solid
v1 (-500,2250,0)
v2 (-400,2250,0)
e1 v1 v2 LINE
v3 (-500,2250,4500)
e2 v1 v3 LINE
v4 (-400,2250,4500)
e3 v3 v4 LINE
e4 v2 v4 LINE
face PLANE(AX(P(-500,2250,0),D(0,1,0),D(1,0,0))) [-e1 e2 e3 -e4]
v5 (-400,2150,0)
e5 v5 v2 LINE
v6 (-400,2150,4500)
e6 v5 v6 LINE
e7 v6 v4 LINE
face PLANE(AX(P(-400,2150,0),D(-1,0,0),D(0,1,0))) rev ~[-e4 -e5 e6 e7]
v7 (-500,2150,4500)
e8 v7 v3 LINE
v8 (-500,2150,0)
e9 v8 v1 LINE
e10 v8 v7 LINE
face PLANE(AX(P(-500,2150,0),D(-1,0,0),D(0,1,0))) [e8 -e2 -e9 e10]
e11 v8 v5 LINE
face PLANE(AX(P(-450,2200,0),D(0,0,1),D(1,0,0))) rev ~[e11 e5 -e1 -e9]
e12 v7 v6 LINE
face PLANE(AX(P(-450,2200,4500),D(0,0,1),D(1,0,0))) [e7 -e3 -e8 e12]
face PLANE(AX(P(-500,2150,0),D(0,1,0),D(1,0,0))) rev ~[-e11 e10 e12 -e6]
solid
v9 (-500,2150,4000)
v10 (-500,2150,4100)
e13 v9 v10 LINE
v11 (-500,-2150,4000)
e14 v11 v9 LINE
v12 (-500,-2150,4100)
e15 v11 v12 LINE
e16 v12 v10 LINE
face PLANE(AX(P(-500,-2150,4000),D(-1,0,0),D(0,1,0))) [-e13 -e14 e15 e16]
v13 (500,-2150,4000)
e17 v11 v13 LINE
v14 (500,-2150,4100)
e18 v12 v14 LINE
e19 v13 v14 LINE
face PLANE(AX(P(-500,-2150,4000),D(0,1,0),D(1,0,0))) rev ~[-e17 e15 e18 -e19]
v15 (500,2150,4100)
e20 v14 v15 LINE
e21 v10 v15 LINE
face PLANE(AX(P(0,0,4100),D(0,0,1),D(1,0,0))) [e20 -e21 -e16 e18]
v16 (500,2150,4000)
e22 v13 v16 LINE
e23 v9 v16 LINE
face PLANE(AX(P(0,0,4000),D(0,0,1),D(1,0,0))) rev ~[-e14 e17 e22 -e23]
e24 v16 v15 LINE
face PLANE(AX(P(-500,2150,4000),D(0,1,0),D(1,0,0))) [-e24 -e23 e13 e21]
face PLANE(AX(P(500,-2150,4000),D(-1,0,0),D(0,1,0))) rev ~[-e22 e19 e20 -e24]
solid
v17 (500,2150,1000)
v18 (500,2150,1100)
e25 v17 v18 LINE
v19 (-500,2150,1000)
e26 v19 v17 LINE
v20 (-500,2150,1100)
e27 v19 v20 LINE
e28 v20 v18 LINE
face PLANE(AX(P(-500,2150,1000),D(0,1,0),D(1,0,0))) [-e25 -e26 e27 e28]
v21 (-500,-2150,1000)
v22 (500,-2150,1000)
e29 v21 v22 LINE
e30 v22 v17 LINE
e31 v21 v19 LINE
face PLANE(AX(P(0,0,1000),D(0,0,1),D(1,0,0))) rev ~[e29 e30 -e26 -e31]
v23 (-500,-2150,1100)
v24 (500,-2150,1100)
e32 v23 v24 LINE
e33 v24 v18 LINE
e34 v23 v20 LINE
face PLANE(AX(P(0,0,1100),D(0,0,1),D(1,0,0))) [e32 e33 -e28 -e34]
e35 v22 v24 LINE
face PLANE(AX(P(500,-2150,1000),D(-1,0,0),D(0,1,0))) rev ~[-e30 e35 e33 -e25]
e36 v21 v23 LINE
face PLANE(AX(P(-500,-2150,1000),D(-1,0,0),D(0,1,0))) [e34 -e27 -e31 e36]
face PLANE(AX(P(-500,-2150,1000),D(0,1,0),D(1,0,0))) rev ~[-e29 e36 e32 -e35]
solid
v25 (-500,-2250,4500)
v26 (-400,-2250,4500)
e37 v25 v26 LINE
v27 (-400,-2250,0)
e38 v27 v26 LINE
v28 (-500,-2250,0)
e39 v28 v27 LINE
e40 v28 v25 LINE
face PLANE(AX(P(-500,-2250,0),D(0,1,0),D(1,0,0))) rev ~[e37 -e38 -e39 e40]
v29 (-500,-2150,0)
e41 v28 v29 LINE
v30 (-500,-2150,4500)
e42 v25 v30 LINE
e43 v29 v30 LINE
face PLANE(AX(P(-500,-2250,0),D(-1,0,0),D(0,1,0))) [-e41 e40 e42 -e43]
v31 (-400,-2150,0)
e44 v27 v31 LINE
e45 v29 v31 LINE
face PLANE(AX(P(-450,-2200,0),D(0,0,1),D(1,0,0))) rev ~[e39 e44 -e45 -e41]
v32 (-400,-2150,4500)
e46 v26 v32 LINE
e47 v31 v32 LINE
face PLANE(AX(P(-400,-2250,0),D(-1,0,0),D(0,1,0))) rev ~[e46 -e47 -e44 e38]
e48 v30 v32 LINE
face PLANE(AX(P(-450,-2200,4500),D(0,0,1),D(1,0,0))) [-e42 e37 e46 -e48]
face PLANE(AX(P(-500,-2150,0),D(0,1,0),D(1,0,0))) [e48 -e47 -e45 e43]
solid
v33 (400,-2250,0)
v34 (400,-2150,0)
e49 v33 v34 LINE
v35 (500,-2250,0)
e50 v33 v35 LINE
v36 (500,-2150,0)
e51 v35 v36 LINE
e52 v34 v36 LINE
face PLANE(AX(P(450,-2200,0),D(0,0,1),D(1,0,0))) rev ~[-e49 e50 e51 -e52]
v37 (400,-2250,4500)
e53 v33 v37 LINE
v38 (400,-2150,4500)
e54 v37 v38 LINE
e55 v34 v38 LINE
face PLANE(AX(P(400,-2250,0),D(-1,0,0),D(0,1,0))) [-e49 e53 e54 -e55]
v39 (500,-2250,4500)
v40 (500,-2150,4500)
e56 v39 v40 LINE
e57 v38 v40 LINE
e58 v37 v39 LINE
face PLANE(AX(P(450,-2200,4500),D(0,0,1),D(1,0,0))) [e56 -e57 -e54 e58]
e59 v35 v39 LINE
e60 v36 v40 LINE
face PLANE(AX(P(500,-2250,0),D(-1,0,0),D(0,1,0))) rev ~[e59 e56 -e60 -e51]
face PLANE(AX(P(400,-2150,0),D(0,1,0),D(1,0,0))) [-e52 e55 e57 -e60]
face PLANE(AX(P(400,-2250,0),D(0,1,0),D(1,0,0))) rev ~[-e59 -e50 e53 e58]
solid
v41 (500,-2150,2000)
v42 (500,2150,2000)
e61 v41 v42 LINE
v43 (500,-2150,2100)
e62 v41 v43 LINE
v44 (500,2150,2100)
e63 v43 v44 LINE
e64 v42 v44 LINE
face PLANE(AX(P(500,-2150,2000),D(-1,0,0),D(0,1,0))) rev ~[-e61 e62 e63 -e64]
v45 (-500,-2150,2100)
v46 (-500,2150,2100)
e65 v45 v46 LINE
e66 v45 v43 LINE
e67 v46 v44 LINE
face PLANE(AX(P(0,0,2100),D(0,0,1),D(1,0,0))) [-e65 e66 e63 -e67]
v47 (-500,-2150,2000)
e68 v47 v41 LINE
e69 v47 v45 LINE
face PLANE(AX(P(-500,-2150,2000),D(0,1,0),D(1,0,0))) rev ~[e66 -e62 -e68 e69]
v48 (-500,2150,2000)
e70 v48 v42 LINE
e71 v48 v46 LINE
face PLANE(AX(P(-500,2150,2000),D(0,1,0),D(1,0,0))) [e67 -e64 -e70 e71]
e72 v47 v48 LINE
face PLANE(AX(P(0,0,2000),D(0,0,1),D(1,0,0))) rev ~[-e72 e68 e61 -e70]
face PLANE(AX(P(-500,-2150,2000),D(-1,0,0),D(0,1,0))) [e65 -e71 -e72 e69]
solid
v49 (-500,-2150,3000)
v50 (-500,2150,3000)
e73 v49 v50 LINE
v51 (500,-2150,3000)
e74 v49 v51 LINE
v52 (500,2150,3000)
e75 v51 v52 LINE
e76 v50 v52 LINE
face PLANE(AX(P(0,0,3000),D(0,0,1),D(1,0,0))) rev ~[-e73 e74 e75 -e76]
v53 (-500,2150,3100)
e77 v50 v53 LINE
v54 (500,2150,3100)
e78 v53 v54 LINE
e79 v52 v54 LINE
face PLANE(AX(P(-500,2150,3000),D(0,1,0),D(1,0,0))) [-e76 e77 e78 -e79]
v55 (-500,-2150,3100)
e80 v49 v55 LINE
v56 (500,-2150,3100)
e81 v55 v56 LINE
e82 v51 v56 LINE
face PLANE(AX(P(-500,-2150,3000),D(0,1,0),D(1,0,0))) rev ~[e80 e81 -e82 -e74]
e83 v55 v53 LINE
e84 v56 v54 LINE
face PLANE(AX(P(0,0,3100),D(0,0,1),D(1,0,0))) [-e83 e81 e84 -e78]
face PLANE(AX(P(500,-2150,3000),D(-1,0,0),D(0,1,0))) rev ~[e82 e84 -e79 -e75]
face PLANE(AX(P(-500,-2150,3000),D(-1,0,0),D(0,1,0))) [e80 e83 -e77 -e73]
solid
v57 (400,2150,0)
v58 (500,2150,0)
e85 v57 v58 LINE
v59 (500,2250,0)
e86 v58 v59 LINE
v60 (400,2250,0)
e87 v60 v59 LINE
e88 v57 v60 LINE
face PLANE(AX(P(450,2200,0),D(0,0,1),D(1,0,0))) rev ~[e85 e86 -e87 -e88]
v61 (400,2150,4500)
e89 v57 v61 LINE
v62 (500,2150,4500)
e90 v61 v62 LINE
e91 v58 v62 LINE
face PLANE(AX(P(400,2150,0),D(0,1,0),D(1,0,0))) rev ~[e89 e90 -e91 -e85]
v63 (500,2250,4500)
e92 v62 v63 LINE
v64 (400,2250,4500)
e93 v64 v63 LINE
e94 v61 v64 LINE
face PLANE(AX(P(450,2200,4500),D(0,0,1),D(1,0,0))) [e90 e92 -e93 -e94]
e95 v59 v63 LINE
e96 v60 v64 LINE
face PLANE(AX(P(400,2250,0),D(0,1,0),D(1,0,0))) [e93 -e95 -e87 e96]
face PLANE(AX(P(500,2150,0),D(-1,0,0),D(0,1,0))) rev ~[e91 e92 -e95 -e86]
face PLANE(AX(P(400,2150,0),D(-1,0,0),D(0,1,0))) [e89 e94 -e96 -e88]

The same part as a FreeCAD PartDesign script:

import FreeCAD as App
import Part
import Sketcher
Q = App.Units.Quantity


def add_polygon(sketch, points):
    """Adds a closed chain of lines whose ends are joined by coincident constraints."""
    first, n = sketch.GeometryCount, len(points)
    for a, b in zip(points, points[1:] + points[:1]):
        sketch.addGeometry(Part.LineSegment(App.Vector(*a, 0), App.Vector(*b, 0)), False)
    for i in range(n):
        sketch.addConstraint(Sketcher.Constraint("Coincident", first + i, 2, first + (i + 1) % n, 1))

doc = App.newDocument("Part")
body = doc.addObject("PartDesign::Body", "Body")
body.AllowCompound = True

# Sketch on XY plane
sketch1 = body.newObject("Sketcher::SketchObject", "Sketch")
sketch1.AttachmentSupport = (doc.getObject("XY_Plane"), [""])
sketch1.MapMode = "FlatFace"
add_polygon(sketch1, [(-500, 2250), (-500, 2150), (-400, 2150), (-400, 2250)])  # lines 0-3
add_polygon(sketch1, [(400, 2250), (400, 2150), (500, 2150), (500, 2250)])  # lines 4-7
add_polygon(sketch1, [(-500, -2150), (-500, -2250), (-400, -2250), (-400, -2150)])  # lines 8-11
add_polygon(sketch1, [(400, -2150), (400, -2250), (500, -2250), (500, -2150)])  # lines 12-15
sketch1.addConstraint([
    Sketcher.Constraint("Vertical", 0),
    Sketcher.Constraint("Horizontal", 1),
    Sketcher.Constraint("Vertical", 2),
    Sketcher.Constraint("Horizontal", 3),
    Sketcher.Constraint("Vertical", 4),
    Sketcher.Constraint("Horizontal", 5),
    Sketcher.Constraint("Vertical", 6),
    Sketcher.Constraint("Horizontal", 7),
    Sketcher.Constraint("Vertical", 8),
    Sketcher.Constraint("Horizontal", 9),
    Sketcher.Constraint("Vertical", 10),
    Sketcher.Constraint("Horizontal", 11),
    Sketcher.Constraint("Vertical", 12),
    Sketcher.Constraint("Horizontal", 13),
    Sketcher.Constraint("Vertical", 14),
    Sketcher.Constraint("Horizontal", 15),
    Sketcher.Constraint("Symmetric", 6, 2, 8, 2, -1, 1),
    Sketcher.Constraint("Symmetric", 4, 2, 10, 2, -1, 1),
    Sketcher.Constraint("Symmetric", 2, 2, 12, 2, -1, 1),
    Sketcher.Constraint("Symmetric", 0, 2, 14, 2, -1, 1),
    Sketcher.Constraint("Symmetric", 1, 2, 4, 2, -2),
    Sketcher.Constraint("Symmetric", 3, 2, 6, 2, -2),
    Sketcher.Constraint("Equal", 15, 0),
    Sketcher.Constraint("DistanceX", 1, 1, 1, 2, Q("100 mm")),
    Sketcher.Constraint("DistanceX", 0, 2, -1, 1, Q("500 mm")),
    Sketcher.Constraint("DistanceY", -1, 1, 0, 2, Q("2150 mm")),
])
pad1 = body.newObject("PartDesign::Pad", "Pad")
pad1.Profile = sketch1
pad1.Length = 4500
body2 = doc.addObject("PartDesign::Body", "Body001")

# Sketch on XY plane
sketch2 = body2.newObject("Sketcher::SketchObject", "Sketch001")
sketch2.AttachmentSupport = (doc.getObject("XY_Plane001"), [""])
sketch2.MapMode = "FlatFace"
sketch2.AttachmentOffset = App.Placement(App.Vector(0, 0, 1000), App.Rotation())
add_polygon(sketch2, [(-500, 2150), (-500, -2150), (500, -2150), (500, 2150)])  # lines 0-3
sketch2.addConstraint([
    Sketcher.Constraint("Vertical", 0),
    Sketcher.Constraint("Horizontal", 1),
    Sketcher.Constraint("Vertical", 2),
    Sketcher.Constraint("Horizontal", 3),
    Sketcher.Constraint("Symmetric", 0, 2, 2, 2, -1, 1),
    Sketcher.Constraint("DistanceX", 1, 1, 1, 2, Q("1000 mm")),
    Sketcher.Constraint("DistanceY", 0, 2, 0, 1, Q("4300 mm")),
])
pad2 = body2.newObject("PartDesign::Pad", "Pad001")
pad2.Profile = sketch2
pad2.Length = 100
body3 = doc.addObject("PartDesign::Body", "Body002")

# Sketch on XY plane
sketch3 = body3.newObject("Sketcher::SketchObject", "Sketch002")
sketch3.AttachmentSupport = (doc.getObject("XY_Plane002"), [""])
sketch3.MapMode = "FlatFace"
sketch3.AttachmentOffset = App.Placement(App.Vector(0, 0, 2000), App.Rotation())
add_polygon(sketch3, [(-500, 2150), (-500, -2150), (500, -2150), (500, 2150)])  # lines 0-3
sketch3.addConstraint([
    Sketcher.Constraint("Vertical", 0),
    Sketcher.Constraint("Horizontal", 1),
    Sketcher.Constraint("Vertical", 2),
    Sketcher.Constraint("Horizontal", 3),
    Sketcher.Constraint("Symmetric", 0, 2, 2, 2, -1, 1),
    Sketcher.Constraint("DistanceX", 1, 1, 1, 2, Q("1000 mm")),
    Sketcher.Constraint("DistanceY", 0, 2, 0, 1, Q("4300 mm")),
])
pad3 = body3.newObject("PartDesign::Pad", "Pad002")
pad3.Profile = sketch3
pad3.Length = 100
body4 = doc.addObject("PartDesign::Body", "Body003")

# Sketch on XY plane
sketch4 = body4.newObject("Sketcher::SketchObject", "Sketch003")
sketch4.AttachmentSupport = (doc.getObject("XY_Plane003"), [""])
sketch4.MapMode = "FlatFace"
sketch4.AttachmentOffset = App.Placement(App.Vector(0, 0, 3000), App.Rotation())
add_polygon(sketch4, [(-500, 2150), (-500, -2150), (500, -2150), (500, 2150)])  # lines 0-3
sketch4.addConstraint([
    Sketcher.Constraint("Vertical", 0),
    Sketcher.Constraint("Horizontal", 1),
    Sketcher.Constraint("Vertical", 2),
    Sketcher.Constraint("Horizontal", 3),
    Sketcher.Constraint("Symmetric", 0, 2, 2, 2, -1, 1),
    Sketcher.Constraint("DistanceX", 1, 1, 1, 2, Q("1000 mm")),
    Sketcher.Constraint("DistanceY", 0, 2, 0, 1, Q("4300 mm")),
])
pad4 = body4.newObject("PartDesign::Pad", "Pad003")
pad4.Profile = sketch4
pad4.Length = 100
body5 = doc.addObject("PartDesign::Body", "Body004")

# Sketch on XY plane
sketch5 = body5.newObject("Sketcher::SketchObject", "Sketch004")
sketch5.AttachmentSupport = (doc.getObject("XY_Plane004"), [""])
sketch5.MapMode = "FlatFace"
sketch5.AttachmentOffset = App.Placement(App.Vector(0, 0, 4000), App.Rotation())
add_polygon(sketch5, [(-500, 2150), (-500, -2150), (500, -2150), (500, 2150)])  # lines 0-3
sketch5.addConstraint([
    Sketcher.Constraint("Vertical", 0),
    Sketcher.Constraint("Horizontal", 1),
    Sketcher.Constraint("Vertical", 2),
    Sketcher.Constraint("Horizontal", 3),
    Sketcher.Constraint("Symmetric", 0, 2, 2, 2, -1, 1),
    Sketcher.Constraint("DistanceX", 1, 1, 1, 2, Q("1000 mm")),
    Sketcher.Constraint("DistanceY", 0, 2, 0, 1, Q("4300 mm")),
])
pad5 = body5.newObject("PartDesign::Pad", "Pad004")
pad5.Profile = sketch5
pad5.Length = 100

doc.recompute()
